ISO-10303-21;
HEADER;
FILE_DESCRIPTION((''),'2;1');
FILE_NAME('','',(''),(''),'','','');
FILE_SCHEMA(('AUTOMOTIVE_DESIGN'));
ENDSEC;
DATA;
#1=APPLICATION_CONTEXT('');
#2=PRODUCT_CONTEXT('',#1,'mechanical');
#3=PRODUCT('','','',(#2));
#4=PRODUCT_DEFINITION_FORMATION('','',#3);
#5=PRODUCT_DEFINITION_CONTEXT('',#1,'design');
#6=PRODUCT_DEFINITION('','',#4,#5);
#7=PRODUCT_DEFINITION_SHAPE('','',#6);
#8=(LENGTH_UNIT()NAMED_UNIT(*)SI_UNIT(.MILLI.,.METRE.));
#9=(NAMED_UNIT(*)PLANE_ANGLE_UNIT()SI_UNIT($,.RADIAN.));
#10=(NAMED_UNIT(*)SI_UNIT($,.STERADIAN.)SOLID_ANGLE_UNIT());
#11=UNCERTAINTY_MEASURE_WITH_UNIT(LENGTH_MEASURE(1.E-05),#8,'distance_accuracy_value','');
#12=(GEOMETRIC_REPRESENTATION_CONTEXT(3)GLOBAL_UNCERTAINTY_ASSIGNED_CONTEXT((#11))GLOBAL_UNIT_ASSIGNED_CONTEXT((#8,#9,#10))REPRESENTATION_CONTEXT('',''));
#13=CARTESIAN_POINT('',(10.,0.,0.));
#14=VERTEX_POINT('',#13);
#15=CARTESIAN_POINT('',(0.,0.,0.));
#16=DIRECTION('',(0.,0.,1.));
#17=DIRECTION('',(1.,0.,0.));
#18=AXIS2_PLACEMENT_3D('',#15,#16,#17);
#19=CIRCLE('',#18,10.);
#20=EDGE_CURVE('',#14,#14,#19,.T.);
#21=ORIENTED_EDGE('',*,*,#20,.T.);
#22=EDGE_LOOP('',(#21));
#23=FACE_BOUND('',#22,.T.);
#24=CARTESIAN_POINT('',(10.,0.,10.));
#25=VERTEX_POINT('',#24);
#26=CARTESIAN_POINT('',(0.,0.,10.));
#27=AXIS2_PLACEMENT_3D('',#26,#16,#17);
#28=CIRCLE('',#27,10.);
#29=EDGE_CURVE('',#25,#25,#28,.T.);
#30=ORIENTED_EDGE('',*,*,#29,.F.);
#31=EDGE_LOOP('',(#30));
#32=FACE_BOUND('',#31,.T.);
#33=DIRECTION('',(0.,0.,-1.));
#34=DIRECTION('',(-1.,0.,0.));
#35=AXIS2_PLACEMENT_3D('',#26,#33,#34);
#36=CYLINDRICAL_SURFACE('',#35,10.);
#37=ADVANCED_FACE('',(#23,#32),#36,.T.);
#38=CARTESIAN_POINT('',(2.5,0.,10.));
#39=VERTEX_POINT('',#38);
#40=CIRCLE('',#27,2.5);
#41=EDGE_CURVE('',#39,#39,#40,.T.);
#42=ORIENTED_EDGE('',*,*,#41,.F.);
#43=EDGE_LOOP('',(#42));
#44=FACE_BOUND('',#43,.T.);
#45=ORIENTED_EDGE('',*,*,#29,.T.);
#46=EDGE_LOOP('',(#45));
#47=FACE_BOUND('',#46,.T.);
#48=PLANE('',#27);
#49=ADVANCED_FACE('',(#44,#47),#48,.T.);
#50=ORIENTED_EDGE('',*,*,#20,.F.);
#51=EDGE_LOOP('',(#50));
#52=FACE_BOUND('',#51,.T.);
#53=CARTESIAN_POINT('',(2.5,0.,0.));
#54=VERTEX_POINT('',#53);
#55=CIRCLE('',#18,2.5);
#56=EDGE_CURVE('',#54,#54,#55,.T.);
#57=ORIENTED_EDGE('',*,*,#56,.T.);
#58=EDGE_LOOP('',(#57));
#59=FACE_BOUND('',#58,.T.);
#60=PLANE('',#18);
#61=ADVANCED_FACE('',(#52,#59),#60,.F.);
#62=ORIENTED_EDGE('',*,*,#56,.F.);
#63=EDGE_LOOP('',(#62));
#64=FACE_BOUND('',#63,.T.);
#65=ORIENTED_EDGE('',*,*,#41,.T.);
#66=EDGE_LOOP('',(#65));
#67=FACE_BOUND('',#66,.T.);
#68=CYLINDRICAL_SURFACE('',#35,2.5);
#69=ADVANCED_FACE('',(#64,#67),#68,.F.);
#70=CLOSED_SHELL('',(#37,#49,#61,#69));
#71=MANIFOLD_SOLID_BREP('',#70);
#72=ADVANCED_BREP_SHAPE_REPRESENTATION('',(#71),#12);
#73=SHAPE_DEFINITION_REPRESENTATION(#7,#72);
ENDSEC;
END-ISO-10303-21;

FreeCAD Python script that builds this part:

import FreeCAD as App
import Part
import Sketcher
from FreeCAD import Vector

doc = App.newDocument("Part")
body = doc.addObject("PartDesign::Body", "Body")

# Sketch on XY plane
sketch1 = doc.addObject("Sketcher::SketchObject", "Sketch")
body.addObject(sketch1)
sketch1.AttachmentSupport = (doc.XY_Plane, [""])
sketch1.MapMode = "FlatFace"
sketch1.addGeometry([
    Part.Circle(Vector(0, 0, 0), Vector(0, 0, 1), 10),
    Part.Circle(Vector(0, 0, 0), Vector(0, 0, 1), 2.5),
], False)
sketch1.addConstraint([
    Sketcher.Constraint("Coincident", 0, 3, -1, 1),
    Sketcher.Constraint("Coincident", 1, 3, -1, 1),
    Sketcher.Constraint("Diameter", 0, 20.0),
    Sketcher.Constraint("Diameter", 1, 5.0),
])
pad1 = doc.addObject("PartDesign::Pad", "Pad")
body.addObject(pad1)
pad1.Profile = sketch1
pad1.Length = 10

doc.recompute()
